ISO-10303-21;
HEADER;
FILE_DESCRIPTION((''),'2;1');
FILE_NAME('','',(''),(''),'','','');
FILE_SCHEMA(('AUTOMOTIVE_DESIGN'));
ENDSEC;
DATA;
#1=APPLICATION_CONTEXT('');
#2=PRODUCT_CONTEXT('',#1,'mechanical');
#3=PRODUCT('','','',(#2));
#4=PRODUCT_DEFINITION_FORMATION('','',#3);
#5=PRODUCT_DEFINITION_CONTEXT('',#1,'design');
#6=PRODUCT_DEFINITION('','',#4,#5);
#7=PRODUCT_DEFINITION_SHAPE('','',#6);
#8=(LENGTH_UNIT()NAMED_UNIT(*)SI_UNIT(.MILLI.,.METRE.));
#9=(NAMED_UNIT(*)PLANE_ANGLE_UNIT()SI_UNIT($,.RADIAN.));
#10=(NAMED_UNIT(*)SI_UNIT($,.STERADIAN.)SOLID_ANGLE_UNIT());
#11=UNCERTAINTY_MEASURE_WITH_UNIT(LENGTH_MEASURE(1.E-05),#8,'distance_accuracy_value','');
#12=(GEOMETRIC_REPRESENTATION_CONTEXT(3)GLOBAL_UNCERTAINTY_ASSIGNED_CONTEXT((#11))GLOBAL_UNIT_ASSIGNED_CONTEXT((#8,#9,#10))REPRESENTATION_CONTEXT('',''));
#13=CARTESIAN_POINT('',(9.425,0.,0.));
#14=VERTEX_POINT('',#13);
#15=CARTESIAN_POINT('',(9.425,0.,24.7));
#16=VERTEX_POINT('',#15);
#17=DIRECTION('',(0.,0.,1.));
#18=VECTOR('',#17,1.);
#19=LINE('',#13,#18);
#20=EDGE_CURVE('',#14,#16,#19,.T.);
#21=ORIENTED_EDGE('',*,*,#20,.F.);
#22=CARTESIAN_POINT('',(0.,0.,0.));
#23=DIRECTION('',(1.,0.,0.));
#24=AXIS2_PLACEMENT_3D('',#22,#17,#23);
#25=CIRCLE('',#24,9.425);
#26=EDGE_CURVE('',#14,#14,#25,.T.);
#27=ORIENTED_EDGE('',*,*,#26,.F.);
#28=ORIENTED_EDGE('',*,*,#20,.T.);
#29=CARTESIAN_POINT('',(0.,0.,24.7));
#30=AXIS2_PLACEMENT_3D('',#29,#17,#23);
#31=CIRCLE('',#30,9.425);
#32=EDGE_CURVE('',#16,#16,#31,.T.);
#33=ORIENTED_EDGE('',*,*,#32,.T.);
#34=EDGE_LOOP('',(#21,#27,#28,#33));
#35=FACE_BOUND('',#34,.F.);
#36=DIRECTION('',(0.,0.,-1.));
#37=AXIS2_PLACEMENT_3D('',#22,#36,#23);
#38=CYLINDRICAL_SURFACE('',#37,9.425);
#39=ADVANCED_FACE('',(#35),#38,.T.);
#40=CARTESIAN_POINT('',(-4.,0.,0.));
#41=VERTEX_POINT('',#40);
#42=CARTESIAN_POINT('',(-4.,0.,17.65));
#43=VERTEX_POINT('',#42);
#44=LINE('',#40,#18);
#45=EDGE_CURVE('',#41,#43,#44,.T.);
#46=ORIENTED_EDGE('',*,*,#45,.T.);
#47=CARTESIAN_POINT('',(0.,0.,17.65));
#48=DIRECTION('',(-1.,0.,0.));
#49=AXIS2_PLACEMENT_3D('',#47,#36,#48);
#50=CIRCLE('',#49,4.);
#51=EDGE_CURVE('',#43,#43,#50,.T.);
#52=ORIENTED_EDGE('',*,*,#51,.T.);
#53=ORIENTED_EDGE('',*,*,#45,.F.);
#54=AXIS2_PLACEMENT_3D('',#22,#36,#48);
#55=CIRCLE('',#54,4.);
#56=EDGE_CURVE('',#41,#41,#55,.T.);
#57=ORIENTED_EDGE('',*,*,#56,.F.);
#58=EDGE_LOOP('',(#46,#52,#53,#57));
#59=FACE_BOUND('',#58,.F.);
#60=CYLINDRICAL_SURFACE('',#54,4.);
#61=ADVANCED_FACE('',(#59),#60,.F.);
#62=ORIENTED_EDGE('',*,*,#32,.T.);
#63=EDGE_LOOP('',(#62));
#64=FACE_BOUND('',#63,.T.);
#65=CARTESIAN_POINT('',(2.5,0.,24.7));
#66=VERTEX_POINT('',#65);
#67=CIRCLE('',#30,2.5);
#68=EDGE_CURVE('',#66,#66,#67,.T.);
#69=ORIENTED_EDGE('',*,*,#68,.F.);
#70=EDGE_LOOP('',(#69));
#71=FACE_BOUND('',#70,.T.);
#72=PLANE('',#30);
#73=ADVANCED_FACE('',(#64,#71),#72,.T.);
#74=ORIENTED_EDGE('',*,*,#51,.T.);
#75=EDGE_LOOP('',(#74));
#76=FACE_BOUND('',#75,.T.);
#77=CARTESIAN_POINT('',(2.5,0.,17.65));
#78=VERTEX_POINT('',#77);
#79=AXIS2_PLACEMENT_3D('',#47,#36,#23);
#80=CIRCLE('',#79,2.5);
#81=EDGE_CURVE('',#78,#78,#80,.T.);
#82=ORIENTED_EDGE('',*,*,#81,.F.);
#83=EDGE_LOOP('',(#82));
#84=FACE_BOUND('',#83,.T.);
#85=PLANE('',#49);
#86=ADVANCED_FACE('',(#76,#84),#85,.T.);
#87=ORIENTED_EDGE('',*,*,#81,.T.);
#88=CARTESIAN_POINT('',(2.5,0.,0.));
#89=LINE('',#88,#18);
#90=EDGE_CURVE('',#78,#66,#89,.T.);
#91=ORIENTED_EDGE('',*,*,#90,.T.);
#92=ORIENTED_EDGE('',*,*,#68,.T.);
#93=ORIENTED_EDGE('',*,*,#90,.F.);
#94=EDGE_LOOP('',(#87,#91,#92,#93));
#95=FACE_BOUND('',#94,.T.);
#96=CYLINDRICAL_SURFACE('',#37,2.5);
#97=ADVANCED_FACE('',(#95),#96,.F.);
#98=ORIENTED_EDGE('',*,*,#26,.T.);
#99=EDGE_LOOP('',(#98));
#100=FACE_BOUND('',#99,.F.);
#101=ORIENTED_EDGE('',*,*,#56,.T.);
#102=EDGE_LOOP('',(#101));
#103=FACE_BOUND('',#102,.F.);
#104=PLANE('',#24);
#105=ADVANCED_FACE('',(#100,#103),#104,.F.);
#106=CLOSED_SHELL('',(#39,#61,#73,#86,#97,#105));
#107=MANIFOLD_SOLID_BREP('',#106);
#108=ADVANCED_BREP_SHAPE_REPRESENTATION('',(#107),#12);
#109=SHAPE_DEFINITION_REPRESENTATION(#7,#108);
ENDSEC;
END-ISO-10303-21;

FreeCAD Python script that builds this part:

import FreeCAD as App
import Part
import Sketcher

doc = App.newDocument("Part")
body = doc.addObject("PartDesign::Body", "Body")

sketch1 = body.newObject("Sketcher::SketchObject", "Sketch")
sketch1.AttachmentSupport = (doc.getObject("XY_Plane"), [""])
sketch1.MapMode = "FlatFace"
sketch1.addGeometry([
    Part.Circle(App.Vector(0, 0, 0), App.Vector(0, 0, 1), 9.4),
    Part.Circle(App.Vector(0, 0, 0), App.Vector(0, 0, 1), 2.5),
], False)
sketch1.addConstraint([
    Sketcher.Constraint("Coincident", 0, 3, -1, 1),
    Sketcher.Constraint("Coincident", 1, 3, -1, 1),
    Sketcher.Constraint("Diameter", 1, 5.0),
    Sketcher.Constraint("Diameter", 0, 18.85),
])
pad1 = body.newObject("PartDesign::Pad", "Pad")
pad1.Profile = sketch1
pad1.Length = 24.7

sketch2 = body.newObject("Sketcher::SketchObject", "Sketch001")
sketch2.AttachmentSupport = (doc.getObject("XY_Plane"), [""])
sketch2.MapMode = "FlatFace"
sketch2.addGeometry(Part.Circle(App.Vector(0, 0, 0), App.Vector(0, 0, 1), 4), False)
sketch2.addConstraint([
    Sketcher.Constraint("Coincident", 0, 3, -1, 1),
    Sketcher.Constraint("Diameter", 0, 8.0),
])
pocket1 = body.newObject("PartDesign::Pocket", "Pocket")
pocket1.Profile = sketch2
pocket1.Length = 17.65
pocket1.Reversed = True

doc.recompute()
